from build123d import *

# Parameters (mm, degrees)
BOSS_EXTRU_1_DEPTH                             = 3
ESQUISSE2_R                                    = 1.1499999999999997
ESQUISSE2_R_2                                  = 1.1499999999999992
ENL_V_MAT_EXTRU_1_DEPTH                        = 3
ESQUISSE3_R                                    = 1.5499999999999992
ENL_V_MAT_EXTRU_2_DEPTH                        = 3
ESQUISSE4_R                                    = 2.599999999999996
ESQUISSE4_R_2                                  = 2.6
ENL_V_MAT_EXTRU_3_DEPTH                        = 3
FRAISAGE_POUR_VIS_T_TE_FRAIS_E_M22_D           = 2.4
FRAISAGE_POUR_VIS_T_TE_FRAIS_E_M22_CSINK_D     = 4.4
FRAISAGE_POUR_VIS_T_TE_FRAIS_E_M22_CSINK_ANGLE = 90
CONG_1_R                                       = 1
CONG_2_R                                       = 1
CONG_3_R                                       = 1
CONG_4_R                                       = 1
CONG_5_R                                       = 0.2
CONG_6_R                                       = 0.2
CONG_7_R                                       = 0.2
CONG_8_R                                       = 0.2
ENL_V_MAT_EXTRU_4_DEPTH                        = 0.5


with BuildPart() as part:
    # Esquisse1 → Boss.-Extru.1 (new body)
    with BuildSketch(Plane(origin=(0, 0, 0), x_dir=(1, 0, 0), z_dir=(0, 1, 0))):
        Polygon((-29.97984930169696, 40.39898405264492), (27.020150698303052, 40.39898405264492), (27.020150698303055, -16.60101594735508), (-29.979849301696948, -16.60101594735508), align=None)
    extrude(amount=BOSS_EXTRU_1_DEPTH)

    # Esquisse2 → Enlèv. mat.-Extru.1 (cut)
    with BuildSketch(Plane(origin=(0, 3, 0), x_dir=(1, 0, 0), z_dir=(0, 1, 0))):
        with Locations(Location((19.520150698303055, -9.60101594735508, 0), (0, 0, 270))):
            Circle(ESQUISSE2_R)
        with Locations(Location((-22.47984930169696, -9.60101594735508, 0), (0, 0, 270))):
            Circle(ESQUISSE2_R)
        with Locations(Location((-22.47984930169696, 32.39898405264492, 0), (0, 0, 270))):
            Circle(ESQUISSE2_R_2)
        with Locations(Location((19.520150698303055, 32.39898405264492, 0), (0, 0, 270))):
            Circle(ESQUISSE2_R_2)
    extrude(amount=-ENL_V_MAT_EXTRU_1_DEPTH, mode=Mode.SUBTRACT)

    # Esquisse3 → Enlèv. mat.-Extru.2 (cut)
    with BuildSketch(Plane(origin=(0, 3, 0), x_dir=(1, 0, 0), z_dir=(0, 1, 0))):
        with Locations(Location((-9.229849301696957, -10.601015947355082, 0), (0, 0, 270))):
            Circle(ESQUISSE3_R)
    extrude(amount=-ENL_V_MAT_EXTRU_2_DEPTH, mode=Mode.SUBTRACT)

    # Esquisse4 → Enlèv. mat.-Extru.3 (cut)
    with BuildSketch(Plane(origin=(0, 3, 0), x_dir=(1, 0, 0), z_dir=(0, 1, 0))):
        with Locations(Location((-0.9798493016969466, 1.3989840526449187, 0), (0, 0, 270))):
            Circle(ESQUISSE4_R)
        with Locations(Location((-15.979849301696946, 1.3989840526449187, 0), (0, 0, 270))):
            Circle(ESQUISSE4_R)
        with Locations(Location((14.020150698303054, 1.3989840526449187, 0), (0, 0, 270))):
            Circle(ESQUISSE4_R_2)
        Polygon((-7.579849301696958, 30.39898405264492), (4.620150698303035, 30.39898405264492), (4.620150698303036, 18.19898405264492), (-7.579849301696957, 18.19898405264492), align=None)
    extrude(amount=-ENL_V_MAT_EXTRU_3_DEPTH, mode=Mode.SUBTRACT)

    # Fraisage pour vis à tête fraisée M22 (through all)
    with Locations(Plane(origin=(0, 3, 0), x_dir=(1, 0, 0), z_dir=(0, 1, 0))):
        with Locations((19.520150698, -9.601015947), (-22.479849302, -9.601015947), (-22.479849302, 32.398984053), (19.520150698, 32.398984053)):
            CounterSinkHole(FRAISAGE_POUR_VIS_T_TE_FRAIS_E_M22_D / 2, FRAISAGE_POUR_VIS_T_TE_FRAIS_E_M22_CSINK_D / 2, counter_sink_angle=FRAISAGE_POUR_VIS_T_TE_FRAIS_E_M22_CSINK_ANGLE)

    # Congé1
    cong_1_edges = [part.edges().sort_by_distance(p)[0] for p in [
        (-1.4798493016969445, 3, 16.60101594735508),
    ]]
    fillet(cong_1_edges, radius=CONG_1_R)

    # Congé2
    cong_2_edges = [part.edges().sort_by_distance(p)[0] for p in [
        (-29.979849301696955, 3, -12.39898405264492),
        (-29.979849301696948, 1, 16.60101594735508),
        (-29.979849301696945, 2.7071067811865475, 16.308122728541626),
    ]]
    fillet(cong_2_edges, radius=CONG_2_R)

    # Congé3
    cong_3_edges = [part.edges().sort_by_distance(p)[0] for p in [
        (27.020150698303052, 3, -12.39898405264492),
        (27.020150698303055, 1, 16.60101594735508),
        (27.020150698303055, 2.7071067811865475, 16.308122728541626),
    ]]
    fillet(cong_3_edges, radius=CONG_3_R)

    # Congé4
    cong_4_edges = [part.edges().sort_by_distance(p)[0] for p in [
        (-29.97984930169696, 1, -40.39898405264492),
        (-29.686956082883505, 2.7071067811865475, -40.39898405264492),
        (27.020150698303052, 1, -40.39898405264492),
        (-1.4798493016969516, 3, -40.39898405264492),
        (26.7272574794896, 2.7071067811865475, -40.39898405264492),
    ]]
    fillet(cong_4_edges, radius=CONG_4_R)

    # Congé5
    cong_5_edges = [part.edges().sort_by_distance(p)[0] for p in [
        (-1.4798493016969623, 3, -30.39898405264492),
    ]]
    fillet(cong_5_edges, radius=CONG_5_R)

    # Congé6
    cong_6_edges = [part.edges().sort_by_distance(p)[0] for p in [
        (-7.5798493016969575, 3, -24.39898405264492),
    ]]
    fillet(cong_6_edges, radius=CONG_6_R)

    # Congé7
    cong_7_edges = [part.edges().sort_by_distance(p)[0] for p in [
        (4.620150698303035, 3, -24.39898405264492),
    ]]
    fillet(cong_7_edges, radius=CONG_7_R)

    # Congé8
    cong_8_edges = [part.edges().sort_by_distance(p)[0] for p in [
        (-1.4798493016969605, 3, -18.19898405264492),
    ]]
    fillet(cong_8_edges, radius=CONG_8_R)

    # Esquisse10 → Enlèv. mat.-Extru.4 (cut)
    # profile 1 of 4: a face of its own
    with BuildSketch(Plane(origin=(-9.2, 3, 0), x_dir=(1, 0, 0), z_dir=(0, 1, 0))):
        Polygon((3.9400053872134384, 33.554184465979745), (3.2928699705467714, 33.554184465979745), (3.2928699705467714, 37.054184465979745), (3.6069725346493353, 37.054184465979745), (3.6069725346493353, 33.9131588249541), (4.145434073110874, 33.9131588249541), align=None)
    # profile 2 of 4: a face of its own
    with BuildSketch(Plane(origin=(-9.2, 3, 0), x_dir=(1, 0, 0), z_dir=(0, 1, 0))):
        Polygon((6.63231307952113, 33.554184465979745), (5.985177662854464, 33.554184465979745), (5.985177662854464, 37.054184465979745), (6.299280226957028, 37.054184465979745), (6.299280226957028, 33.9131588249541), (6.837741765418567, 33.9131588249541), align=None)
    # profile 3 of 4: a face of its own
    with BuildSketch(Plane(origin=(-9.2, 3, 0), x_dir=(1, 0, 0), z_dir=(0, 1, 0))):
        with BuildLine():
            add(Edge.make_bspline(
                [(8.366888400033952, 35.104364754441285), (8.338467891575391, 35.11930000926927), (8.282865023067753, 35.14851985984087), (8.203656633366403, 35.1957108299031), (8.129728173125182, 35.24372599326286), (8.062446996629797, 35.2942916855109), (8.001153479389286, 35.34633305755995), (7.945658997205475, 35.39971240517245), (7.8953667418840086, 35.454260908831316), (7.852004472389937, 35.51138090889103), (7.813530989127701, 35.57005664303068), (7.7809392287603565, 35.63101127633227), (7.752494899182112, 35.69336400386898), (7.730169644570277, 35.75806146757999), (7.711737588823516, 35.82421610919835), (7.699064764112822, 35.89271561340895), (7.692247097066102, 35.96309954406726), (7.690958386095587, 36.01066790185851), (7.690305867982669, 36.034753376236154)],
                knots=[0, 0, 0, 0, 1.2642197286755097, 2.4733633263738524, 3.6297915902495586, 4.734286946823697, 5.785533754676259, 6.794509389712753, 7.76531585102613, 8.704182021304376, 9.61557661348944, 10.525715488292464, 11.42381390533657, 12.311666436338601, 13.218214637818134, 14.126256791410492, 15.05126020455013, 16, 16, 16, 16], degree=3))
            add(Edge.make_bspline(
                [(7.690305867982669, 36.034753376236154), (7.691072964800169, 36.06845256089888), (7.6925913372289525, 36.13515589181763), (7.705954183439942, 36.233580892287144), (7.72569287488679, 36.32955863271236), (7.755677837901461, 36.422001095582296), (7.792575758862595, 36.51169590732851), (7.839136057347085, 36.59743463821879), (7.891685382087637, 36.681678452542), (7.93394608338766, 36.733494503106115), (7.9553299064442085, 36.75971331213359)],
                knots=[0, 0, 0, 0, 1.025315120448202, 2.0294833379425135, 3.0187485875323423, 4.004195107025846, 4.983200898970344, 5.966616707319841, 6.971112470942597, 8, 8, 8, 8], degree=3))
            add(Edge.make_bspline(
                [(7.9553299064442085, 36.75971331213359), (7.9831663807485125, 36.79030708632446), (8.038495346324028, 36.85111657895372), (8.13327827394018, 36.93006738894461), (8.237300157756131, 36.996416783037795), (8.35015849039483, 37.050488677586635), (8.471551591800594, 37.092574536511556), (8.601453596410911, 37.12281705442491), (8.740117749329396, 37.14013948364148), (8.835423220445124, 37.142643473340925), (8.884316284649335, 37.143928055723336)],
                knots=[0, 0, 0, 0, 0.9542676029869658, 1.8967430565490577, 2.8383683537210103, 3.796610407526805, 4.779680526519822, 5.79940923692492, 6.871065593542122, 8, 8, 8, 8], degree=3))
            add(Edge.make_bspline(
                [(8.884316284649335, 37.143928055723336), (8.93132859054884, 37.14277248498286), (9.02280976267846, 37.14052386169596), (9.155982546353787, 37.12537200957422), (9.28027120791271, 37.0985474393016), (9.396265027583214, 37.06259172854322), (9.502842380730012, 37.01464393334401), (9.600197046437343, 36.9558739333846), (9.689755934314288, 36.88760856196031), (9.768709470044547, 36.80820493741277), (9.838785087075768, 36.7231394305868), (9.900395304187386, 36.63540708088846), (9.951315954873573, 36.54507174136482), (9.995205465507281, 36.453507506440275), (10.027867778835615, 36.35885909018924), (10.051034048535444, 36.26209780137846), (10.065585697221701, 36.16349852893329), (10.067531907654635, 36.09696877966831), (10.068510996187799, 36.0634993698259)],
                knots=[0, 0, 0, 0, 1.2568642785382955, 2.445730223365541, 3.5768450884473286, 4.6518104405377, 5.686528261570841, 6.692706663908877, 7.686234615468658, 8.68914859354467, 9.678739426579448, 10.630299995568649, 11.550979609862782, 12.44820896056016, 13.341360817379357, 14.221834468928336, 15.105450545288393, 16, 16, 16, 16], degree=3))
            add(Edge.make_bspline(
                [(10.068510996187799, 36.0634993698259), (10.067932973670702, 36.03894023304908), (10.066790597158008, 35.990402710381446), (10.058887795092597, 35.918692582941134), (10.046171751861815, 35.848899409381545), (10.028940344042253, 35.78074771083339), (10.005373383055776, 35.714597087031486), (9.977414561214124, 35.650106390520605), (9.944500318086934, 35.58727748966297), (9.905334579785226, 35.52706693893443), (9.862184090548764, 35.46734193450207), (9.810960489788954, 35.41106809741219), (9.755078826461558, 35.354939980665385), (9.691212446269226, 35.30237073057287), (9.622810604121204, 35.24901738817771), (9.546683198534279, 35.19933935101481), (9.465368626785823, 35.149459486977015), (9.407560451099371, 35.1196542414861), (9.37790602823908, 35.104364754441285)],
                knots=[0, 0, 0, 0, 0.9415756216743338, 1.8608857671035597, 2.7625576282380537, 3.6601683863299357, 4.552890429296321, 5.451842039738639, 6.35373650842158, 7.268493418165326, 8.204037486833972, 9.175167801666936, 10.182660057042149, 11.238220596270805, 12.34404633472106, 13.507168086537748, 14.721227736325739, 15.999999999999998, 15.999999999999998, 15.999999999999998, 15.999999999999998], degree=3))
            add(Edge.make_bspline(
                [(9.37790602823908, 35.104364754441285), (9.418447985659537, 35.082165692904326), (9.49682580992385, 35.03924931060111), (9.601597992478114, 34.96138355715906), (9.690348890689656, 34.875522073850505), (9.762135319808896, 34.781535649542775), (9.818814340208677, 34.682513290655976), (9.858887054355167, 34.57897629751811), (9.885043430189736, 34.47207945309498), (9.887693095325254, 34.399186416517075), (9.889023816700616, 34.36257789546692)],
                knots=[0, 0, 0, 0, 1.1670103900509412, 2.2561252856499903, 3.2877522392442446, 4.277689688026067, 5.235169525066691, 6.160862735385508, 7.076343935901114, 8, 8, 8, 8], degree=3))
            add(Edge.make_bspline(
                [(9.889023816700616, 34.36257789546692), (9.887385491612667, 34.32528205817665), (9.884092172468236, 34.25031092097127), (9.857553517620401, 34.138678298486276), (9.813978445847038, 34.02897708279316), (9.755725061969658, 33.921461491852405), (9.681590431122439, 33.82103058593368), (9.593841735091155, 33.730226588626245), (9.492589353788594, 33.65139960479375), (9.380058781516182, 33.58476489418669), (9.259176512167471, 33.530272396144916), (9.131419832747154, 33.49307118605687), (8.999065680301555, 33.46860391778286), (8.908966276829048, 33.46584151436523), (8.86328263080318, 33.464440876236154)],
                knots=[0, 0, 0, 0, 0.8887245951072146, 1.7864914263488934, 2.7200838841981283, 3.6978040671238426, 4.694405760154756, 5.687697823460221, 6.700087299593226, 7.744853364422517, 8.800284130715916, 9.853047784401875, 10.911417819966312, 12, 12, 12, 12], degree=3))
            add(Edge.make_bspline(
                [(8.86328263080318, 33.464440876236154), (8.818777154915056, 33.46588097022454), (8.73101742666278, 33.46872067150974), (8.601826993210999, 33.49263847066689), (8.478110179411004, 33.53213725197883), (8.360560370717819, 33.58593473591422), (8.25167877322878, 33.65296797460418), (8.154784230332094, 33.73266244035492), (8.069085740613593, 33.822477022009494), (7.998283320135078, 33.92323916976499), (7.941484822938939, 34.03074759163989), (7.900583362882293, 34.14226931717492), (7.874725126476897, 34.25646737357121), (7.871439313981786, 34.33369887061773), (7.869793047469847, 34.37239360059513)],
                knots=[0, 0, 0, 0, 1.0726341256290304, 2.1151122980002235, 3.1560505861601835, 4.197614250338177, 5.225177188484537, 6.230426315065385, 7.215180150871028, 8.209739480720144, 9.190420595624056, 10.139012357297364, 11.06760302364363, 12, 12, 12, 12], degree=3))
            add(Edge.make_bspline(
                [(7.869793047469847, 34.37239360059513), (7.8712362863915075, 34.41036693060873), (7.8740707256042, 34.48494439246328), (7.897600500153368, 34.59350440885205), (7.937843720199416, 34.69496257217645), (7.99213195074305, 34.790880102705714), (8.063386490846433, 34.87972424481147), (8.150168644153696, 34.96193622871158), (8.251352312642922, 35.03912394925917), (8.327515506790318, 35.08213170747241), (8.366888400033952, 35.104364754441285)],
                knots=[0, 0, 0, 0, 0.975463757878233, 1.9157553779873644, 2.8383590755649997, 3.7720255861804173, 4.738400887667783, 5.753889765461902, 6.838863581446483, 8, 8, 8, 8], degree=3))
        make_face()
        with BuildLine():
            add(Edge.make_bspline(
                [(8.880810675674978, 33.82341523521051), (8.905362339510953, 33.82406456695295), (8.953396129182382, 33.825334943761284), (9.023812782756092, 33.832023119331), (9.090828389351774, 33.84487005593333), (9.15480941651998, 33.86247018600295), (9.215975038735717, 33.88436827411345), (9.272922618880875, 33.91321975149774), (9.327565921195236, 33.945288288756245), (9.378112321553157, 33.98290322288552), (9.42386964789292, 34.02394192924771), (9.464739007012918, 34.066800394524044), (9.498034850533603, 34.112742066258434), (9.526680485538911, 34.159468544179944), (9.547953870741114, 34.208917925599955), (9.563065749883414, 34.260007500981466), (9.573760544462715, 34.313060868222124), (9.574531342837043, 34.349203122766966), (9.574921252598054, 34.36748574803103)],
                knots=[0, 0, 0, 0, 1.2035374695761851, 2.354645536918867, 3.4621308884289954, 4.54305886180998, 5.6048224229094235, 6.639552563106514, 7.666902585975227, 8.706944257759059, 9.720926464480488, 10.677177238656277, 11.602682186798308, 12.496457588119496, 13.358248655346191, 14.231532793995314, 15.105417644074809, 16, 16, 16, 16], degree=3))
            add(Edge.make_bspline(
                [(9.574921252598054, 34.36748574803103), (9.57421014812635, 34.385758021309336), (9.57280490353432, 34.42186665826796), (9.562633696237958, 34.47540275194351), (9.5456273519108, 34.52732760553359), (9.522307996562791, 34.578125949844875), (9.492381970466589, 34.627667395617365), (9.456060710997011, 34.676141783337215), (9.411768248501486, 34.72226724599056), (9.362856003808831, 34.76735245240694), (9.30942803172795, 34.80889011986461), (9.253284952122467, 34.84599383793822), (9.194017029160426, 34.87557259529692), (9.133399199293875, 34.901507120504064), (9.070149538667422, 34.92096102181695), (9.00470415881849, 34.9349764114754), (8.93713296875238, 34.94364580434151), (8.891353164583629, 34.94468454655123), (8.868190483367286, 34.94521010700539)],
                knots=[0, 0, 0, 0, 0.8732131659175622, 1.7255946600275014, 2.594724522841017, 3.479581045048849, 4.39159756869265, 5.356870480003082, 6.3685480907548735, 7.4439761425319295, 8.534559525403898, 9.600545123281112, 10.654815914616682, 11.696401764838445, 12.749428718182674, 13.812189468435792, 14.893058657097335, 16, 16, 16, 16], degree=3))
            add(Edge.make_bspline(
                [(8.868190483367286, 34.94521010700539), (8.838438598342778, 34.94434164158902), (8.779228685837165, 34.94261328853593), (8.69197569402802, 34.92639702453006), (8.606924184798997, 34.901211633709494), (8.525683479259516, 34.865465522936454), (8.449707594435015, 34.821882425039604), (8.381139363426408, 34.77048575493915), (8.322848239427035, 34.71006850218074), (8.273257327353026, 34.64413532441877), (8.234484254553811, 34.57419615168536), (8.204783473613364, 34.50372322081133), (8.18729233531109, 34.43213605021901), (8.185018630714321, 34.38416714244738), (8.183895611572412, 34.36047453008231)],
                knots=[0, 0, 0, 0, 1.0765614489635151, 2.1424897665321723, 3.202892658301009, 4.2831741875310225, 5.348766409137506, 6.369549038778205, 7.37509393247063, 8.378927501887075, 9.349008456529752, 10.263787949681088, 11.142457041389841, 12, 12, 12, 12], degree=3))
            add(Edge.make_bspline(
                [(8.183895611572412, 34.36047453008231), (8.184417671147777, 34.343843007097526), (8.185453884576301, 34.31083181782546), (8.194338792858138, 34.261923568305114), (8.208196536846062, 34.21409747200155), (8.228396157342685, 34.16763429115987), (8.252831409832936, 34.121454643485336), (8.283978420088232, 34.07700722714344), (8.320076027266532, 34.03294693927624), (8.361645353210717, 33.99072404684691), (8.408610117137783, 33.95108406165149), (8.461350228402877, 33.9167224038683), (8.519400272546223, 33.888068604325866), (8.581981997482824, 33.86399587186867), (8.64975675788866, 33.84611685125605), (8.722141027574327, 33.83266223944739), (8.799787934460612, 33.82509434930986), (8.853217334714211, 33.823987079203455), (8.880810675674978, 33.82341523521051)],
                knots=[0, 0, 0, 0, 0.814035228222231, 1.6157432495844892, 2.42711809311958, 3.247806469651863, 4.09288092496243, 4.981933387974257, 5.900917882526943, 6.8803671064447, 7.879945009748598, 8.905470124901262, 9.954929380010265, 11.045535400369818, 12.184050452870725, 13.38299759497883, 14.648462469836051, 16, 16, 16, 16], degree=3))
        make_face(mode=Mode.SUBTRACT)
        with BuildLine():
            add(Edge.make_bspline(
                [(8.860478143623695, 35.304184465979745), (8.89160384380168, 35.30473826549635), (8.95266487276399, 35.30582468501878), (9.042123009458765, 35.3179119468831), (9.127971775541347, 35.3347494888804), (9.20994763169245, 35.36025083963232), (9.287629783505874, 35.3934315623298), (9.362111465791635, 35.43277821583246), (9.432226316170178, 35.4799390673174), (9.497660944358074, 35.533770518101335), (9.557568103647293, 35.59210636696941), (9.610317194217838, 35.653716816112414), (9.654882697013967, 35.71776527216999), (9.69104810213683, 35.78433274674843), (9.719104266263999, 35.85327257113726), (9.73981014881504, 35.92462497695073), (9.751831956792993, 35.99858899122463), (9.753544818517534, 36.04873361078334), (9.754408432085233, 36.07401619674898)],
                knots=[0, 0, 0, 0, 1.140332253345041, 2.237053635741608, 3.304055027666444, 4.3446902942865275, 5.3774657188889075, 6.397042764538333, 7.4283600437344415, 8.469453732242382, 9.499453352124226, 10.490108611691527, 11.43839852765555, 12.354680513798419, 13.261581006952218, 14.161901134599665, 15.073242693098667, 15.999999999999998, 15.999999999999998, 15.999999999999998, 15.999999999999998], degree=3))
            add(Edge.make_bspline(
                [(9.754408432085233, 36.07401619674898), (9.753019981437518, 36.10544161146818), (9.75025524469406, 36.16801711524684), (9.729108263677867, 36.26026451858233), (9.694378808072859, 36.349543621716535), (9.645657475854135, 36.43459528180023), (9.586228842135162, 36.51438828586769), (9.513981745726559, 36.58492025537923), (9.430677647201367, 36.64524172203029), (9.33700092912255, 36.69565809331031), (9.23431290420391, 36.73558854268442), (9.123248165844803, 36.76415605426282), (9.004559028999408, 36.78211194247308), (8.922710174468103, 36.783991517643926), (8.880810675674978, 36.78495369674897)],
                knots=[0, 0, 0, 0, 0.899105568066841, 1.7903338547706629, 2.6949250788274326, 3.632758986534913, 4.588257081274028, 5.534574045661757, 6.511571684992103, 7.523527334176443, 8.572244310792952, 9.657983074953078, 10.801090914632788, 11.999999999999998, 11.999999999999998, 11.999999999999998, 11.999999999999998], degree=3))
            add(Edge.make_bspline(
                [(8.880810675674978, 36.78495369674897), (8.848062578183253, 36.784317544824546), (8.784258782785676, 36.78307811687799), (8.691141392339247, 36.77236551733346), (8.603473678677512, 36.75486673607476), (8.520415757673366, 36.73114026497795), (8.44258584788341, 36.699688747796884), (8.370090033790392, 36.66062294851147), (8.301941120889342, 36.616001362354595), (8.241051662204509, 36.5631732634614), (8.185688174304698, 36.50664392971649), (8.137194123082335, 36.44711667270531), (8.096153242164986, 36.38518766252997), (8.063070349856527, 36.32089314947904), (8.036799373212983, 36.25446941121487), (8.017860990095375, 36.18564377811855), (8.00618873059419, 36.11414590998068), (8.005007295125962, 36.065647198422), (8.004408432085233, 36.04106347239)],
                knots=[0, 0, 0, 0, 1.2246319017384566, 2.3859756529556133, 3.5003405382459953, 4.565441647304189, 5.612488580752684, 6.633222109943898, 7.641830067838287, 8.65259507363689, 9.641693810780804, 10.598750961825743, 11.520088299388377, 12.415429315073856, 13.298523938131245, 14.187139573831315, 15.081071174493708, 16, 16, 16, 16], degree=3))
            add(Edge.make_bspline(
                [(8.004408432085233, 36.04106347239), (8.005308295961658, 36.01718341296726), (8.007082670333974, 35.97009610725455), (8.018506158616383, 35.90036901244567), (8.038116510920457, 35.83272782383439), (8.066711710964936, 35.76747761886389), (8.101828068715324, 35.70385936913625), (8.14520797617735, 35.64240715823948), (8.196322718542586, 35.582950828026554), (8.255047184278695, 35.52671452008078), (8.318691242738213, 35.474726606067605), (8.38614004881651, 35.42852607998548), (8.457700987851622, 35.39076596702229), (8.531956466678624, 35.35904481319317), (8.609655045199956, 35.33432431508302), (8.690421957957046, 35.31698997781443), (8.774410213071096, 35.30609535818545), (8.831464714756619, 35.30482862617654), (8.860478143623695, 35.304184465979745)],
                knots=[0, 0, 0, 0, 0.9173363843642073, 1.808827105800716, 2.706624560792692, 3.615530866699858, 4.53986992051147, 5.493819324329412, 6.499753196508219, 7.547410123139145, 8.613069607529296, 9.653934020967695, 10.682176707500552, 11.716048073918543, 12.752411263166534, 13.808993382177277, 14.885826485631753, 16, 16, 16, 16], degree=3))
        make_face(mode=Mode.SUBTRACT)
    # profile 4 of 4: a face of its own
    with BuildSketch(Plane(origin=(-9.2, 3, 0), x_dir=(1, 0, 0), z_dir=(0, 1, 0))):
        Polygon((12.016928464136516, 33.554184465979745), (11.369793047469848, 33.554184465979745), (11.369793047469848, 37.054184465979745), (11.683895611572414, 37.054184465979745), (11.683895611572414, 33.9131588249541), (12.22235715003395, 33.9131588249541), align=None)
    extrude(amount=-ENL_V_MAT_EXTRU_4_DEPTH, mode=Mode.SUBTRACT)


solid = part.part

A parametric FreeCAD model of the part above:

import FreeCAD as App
import Part
import Sketcher

V = App.Vector
Q = App.Units.Quantity


def edges_at(feature, points):
    """Names of the edges that pass closest to the given points."""
    edges = feature.Shape.Edges
    near = lambda p: min(range(len(edges)), key=lambda i: edges[i].distToShape(Part.Vertex(*p))[0])
    return sorted({f"Edge{near(p) + 1}" for p in points})

doc = App.newDocument("Part")
body = doc.addObject("PartDesign::Body", "Body")

# Sketch on XZ plane
sketch1 = body.newObject("Sketcher::SketchObject", "Sketch")
sketch1.AttachmentSupport = (doc.getObject("XZ_Plane"), [""])
sketch1.MapMode = "FlatFace"
sketch1.addGeometry([
    Part.LineSegment(V(27, -40, 0), V(-30, -40, 0)),
    Part.LineSegment(V(-30, -40, 0), V(-30, 17, 0)),
    Part.LineSegment(V(-30, 17, 0), V(27, 17, 0)),
    Part.LineSegment(V(27, 17, 0), V(27, -40, 0)),
], False)
sketch1.addConstraint([
    Sketcher.Constraint("Coincident", 0, 2, 1, 1),
    Sketcher.Constraint("Coincident", 1, 2, 2, 1),
    Sketcher.Constraint("Coincident", 2, 2, 3, 1),
    Sketcher.Constraint("Coincident", 3, 2, 0, 1),
    Sketcher.Constraint("Horizontal", 0),
    Sketcher.Constraint("Vertical", 1),
    Sketcher.Constraint("Horizontal", 2),
    Sketcher.Constraint("Vertical", 3),
    Sketcher.Constraint("Equal", 2, 1),
    Sketcher.Constraint("DistanceX", 0, 2, 0, 1, Q("57 mm")),
    Sketcher.Constraint("DistanceX", 0, 2, -1, 1, Q("29.979849 mm")),
    Sketcher.Constraint("DistanceY", 0, 2, -1, 1, Q("40.398984 mm")),
])
pad1 = body.newObject("PartDesign::Pad", "Pad")
pad1.Profile = sketch1
pad1.Length = 3
pad1.Reversed = True

# Sketch on XZ plane
sketch2 = body.newObject("Sketcher::SketchObject", "Sketch001")
sketch2.AttachmentSupport = (doc.getObject("XZ_Plane"), [""])
sketch2.MapMode = "FlatFace"
sketch2.AttachmentOffset = App.Placement(V(0, 0, -3), App.Rotation())
sketch2.addGeometry([
    Part.Circle(V(19.5, 9.6, 0), V(0, 0, 1), 1.1),
    Part.Circle(V(-22.5, 9.6, 0), V(0, 0, 1), 1.1),
    Part.Circle(V(-22.5, -32.4, 0), V(0, 0, 1), 1.1),
    Part.Circle(V(19.5, -32.4, 0), V(0, 0, 1), 1.1),
], False)
sketch2.addConstraint([
    Sketcher.Constraint("Equal", 0, 1),
    Sketcher.Constraint("Equal", 1, 2),
    Sketcher.Constraint("Equal", 2, 3),
    Sketcher.Constraint("Horizontal", 0, 3, 1, 3),
    Sketcher.Constraint("Horizontal", 2, 3, 3, 3),
    Sketcher.Constraint("Vertical", 1, 3, 2, 3),
    Sketcher.Constraint("Vertical", 0, 3, 3, 3),
    Sketcher.Constraint("Diameter", 0, Q("2.3 mm")),
    Sketcher.Constraint("DistanceX", 1, 3, 0, 3, Q("42 mm")),
    Sketcher.Constraint("DistanceY", 2, 3, 1, 3, Q("42 mm")),
    Sketcher.Constraint("DistanceX", -1, 1, 0, 3, Q("19.520151 mm")),
    Sketcher.Constraint("DistanceY", -1, 1, 0, 3, Q("9.601016 mm")),
])
pocket1 = body.newObject("PartDesign::Pocket", "Pocket")
pocket1.Profile = sketch2
pocket1.Length = 3
pocket1.Reversed = True

# Sketch on XZ plane
sketch3 = body.newObject("Sketcher::SketchObject", "Sketch002")
sketch3.AttachmentSupport = (doc.getObject("XZ_Plane"), [""])
sketch3.MapMode = "FlatFace"
sketch3.AttachmentOffset = App.Placement(V(0, 0, -3), App.Rotation())
sketch3.addGeometry(Part.Circle(V(-9.2, 10.6, 0), V(0, 0, 1), 1.6), False)
sketch3.addConstraint([
    Sketcher.Constraint("Diameter", 0, Q("3.1 mm")),
    Sketcher.Constraint("DistanceX", 0, 3, -1, 1, Q("9.229849 mm")),
    Sketcher.Constraint("DistanceY", -1, 1, 0, 3, Q("10.601016 mm")),
])
pocket2 = body.newObject("PartDesign::Pocket", "Pocket001")
pocket2.Profile = sketch3
pocket2.Length = 3
pocket2.Reversed = True

# Sketch on XZ plane
sketch4 = body.newObject("Sketcher::SketchObject", "Sketch003")
sketch4.AttachmentSupport = (doc.getObject("XZ_Plane"), [""])
sketch4.MapMode = "FlatFace"
sketch4.AttachmentOffset = App.Placement(V(0, 0, -3), App.Rotation())
sketch4.addGeometry([
    Part.Circle(V(-1, -1.4, 0), V(0, 0, 1), 2.6),  # 0
    Part.Circle(V(-16, -1.4, 0), V(0, 0, 1), 2.6),  # 1
    Part.Circle(V(14, -1.4, 0), V(0, 0, 1), 2.6),  # 2
    Part.LineSegment(V(4.6, -30.4, 0), V(-7.6, -30.4, 0)),  # 3
    Part.LineSegment(V(-7.6, -30.4, 0), V(-7.6, -18.2, 0)),  # 4
    Part.LineSegment(V(-7.6, -18.2, 0), V(4.6, -18.2, 0)),  # 5
    Part.LineSegment(V(4.6, -18.2, 0), V(4.6, -30.4, 0)),  # 6
], False)
sketch4.addConstraint([
    Sketcher.Constraint("Coincident", 3, 2, 4, 1),
    Sketcher.Constraint("Coincident", 4, 2, 5, 1),
    Sketcher.Constraint("Coincident", 5, 2, 6, 1),
    Sketcher.Constraint("Coincident", 6, 2, 3, 1),
    Sketcher.Constraint("Horizontal", 3),
    Sketcher.Constraint("Vertical", 4),
    Sketcher.Constraint("Horizontal", 5),
    Sketcher.Constraint("Vertical", 6),
    Sketcher.Constraint("Equal", 0, 1),
    Sketcher.Constraint("Equal", 1, 2),
    Sketcher.Constraint("Horizontal", 0, 3, 1, 3),
    Sketcher.Constraint("Horizontal", 1, 3, 2, 3),
    Sketcher.Constraint("Equal", 5, 4),
    Sketcher.Constraint("Diameter", 0, Q("5.2 mm")),
    Sketcher.Constraint("DistanceX", 3, 2, 3, 1, Q("12.2 mm")),
    Sketcher.Constraint("DistanceX", 1, 3, 0, 3, Q("15 mm")),
    Sketcher.Constraint("DistanceX", 0, 3, 2, 3, Q("15 mm")),
    Sketcher.Constraint("DistanceY", 3, 2, 0, 3, Q("29 mm")),
    Sketcher.Constraint("DistanceX", 3, 2, 0, 3, Q("6.6 mm")),
    Sketcher.Constraint("DistanceX", 0, 3, -1, 1, Q("0.979849 mm")),
    Sketcher.Constraint("DistanceY", 0, 3, -1, 1, Q("1.398984 mm")),
])
pocket3 = body.newObject("PartDesign::Pocket", "Pocket002")
pocket3.Profile = sketch4
pocket3.Length = 3
pocket3.Reversed = True

# Sketch on XZ plane
sketch5 = body.newObject("Sketcher::SketchObject", "Sketch004")
sketch5.AttachmentSupport = (doc.getObject("XZ_Plane"), [""])
sketch5.MapMode = "FlatFace"
sketch5.AttachmentOffset = App.Placement(V(0, 0, -3), App.Rotation())
sketch5.addGeometry([
    Part.Circle(V(19.5, 9.6, 0), V(0, 0, 1), 1.2),
    Part.Circle(V(-22.5, 9.6, 0), V(0, 0, 1), 1.2),
    Part.Circle(V(-22.5, -32.4, 0), V(0, 0, 1), 1.2),
    Part.Circle(V(19.5, -32.4, 0), V(0, 0, 1), 1.2),
], False)
sketch5.addConstraint([
    Sketcher.Constraint("Equal", 0, 1),
    Sketcher.Constraint("Equal", 1, 2),
    Sketcher.Constraint("Equal", 2, 3),
    Sketcher.Constraint("Horizontal", 0, 3, 1, 3),
    Sketcher.Constraint("Horizontal", 2, 3, 3, 3),
    Sketcher.Constraint("Vertical", 1, 3, 2, 3),
    Sketcher.Constraint("Vertical", 0, 3, 3, 3),
    Sketcher.Constraint("Diameter", 0, Q("2.4 mm")),
    Sketcher.Constraint("DistanceX", 1, 3, 0, 3, Q("42 mm")),
    Sketcher.Constraint("DistanceY", 2, 3, 1, 3, Q("42 mm")),
    Sketcher.Constraint("DistanceX", -1, 1, 0, 3, Q("19.520151 mm")),
    Sketcher.Constraint("DistanceY", -1, 1, 0, 3, Q("9.601016 mm")),
])
doc.recompute()
hole = body.newObject("PartDesign::Hole", "Hole")
hole.Profile = sketch5
hole.ThreadType = "None"
hole.Diameter = 2.4
hole.DepthType = "ThroughAll"
hole.HoleCutType = "Countersink"
hole.HoleCutDiameter = 4.4
hole.HoleCutCountersinkAngle = 90
hole.Reversed = True
doc.recompute()

fillet = body.newObject("PartDesign::Fillet", "Fillet")
fillet.Base = (hole, edges_at(hole, [(-1.48, 3, 16.601)]))
fillet.Radius = 1
doc.recompute()

fillet2 = body.newObject("PartDesign::Fillet", "Fillet001")
fillet2.Base = (fillet, edges_at(fillet, [(-29.98, 3, -12.399), (-29.98, 1, 16.601), (-29.98, 2.707, 16.308)]))
fillet2.Radius = 1
doc.recompute()

fillet3 = body.newObject("PartDesign::Fillet", "Fillet002")
fillet3.Base = (fillet2, edges_at(fillet2, [(27.02, 3, -12.399), (27.02, 1, 16.601), (27.02, 2.707, 16.308)]))
fillet3.Radius = 1
doc.recompute()

fillet4 = body.newObject("PartDesign::Fillet", "Fillet003")
fillet4.Base = (fillet3, edges_at(fillet3, [
    (-29.98, 1, -40.399),
    (-29.687, 2.707, -40.399),
    (27.02, 1, -40.399),
    (-1.48, 3, -40.399),
    (26.727, 2.707, -40.399),
]))
fillet4.Radius = 1
doc.recompute()

fillet5 = body.newObject("PartDesign::Fillet", "Fillet004")
fillet5.Base = (fillet4, edges_at(fillet4, [(-1.48, 3, -30.399)]))
fillet5.Radius = 0.2
doc.recompute()

fillet6 = body.newObject("PartDesign::Fillet", "Fillet005")
fillet6.Base = (fillet5, edges_at(fillet5, [(-7.58, 3, -24.399)]))
fillet6.Radius = 0.2
doc.recompute()

fillet7 = body.newObject("PartDesign::Fillet", "Fillet006")
fillet7.Base = (fillet6, edges_at(fillet6, [(4.62, 3, -24.399)]))
fillet7.Radius = 0.2
doc.recompute()

fillet8 = body.newObject("PartDesign::Fillet", "Fillet007")
fillet8.Base = (fillet7, edges_at(fillet7, [(-1.48, 3, -18.199)]))
fillet8.Radius = 0.2

# Sketch on XZ plane
sketch6 = body.newObject("Sketcher::SketchObject", "Sketch005")
sketch6.AttachmentSupport = (doc.getObject("XZ_Plane"), [""])
sketch6.MapMode = "FlatFace"
sketch6.AttachmentOffset = App.Placement(V(0, 0, -3), App.Rotation())
sketch6.addGeometry([
    Part.LineSegment(V(-5.90713, -33.554184, 0), V(-5.259995, -33.554184, 0)),  # 0
    Part.LineSegment(V(-5.259995, -33.554184, 0), V(-5.054566, -33.913159, 0)),  # 1
    Part.LineSegment(V(-5.054566, -33.913159, 0), V(-5.593027, -33.913159, 0)),  # 2
    Part.LineSegment(V(-5.593027, -33.913159, 0), V(-5.593027, -37.054184, 0)),  # 3
    Part.LineSegment(V(-5.593027, -37.054184, 0), V(-5.90713, -37.054184, 0)),  # 4
    Part.LineSegment(V(-5.90713, -37.054184, 0), V(-5.90713, -33.554184, 0)),  # 5
    Part.LineSegment(V(-3.214822, -33.554184, 0), V(-2.567687, -33.554184, 0)),  # 6
    Part.LineSegment(V(-2.567687, -33.554184, 0), V(-2.362258, -33.913159, 0)),  # 7
    Part.LineSegment(V(-2.362258, -33.913159, 0), V(-2.90072, -33.913159, 0)),  # 8
    Part.LineSegment(V(-2.90072, -33.913159, 0), V(-2.90072, -37.054184, 0)),  # 9
    Part.LineSegment(V(-2.90072, -37.054184, 0), V(-3.214822, -37.054184, 0)),  # 10
    Part.LineSegment(V(-3.214822, -37.054184, 0), V(-3.214822, -33.554184, 0)),  # 11
    Part.BSplineCurve([V(-0.833112, -35.104365, 0), V(-0.861532, -35.1193, 0), V(-0.917135, -35.14852, 0), V(-0.996343, -35.195711, 0), V(-1.070272, -35.243726, 0), V(-1.137553, -35.294292, 0), V(-1.198847, -35.346333, 0), V(-1.254341, -35.399712, 0), V(-1.304633, -35.454261, 0), V(-1.347996, -35.511381, 0), V(-1.386469, -35.570057, 0), V(-1.419061, -35.631011, 0), V(-1.447505, -35.693364, 0), V(-1.46983, -35.758061, 0), V(-1.488262, -35.824216, 0), V(-1.500935, -35.892716, 0), V(-1.507753, -35.9631, 0), V(-1.509042, -36.010668, 0), V(-1.509694, -36.034753, 0)], [4, 1, 1, 1, 1, 1, 1, 1, 1, 1, 1, 1, 1, 1, 1, 1, 4], [0, 1.264219729, 2.473363326, 3.62979159, 4.734286947, 5.785533755, 6.79450939, 7.765315851, 8.704182021, 9.615576613, 10.525715488, 11.423813905, 12.311666436, 13.218214638, 14.126256791, 15.051260205, 16], False, 3, [1, 1, 1, 1, 1, 1, 1, 1, 1, 1, 1, 1, 1, 1, 1, 1, 1, 1, 1], False),  # 12
    Part.BSplineCurve([V(-1.330207, -34.372394, 0), V(-1.328764, -34.410367, 0), V(-1.325929, -34.484944, 0), V(-1.302399, -34.593504, 0), V(-1.262156, -34.694963, 0), V(-1.207868, -34.79088, 0), V(-1.136614, -34.879724, 0), V(-1.049831, -34.961936, 0), V(-0.948648, -35.039124, 0), V(-0.872484, -35.082132, 0), V(-0.833112, -35.104365, 0)], [4, 1, 1, 1, 1, 1, 1, 1, 4], [0, 0.975463758, 1.915755378, 2.838359076, 3.772025586, 4.738400888, 5.753889765, 6.838863581, 8], False, 3, [1, 1, 1, 1, 1, 1, 1, 1, 1, 1, 1], False),  # 13
    Part.BSplineCurve([V(-0.336717, -33.464441, 0), V(-0.381223, -33.465881, 0), V(-0.468983, -33.468721, 0), V(-0.598173, -33.492638, 0), V(-0.72189, -33.532137, 0), V(-0.83944, -33.585935, 0), V(-0.948321, -33.652968, 0), V(-1.045216, -33.732662, 0), V(-1.130914, -33.822477, 0), V(-1.201717, -33.923239, 0), V(-1.258515, -34.030748, 0), V(-1.299417, -34.142269, 0), V(-1.325275, -34.256467, 0), V(-1.328561, -34.333699, 0), V(-1.330207, -34.372394, 0)], [4, 1, 1, 1, 1, 1, 1, 1, 1, 1, 1, 1, 4], [0, 1.072634126, 2.115112298, 3.156050586, 4.19761425, 5.225177188, 6.230426315, 7.215180151, 8.209739481, 9.190420596, 10.139012357, 11.067603024, 12], False, 3, [1, 1, 1, 1, 1, 1, 1, 1, 1, 1, 1, 1, 1, 1, 1], False),  # 14
    Part.BSplineCurve([V(0.689024, -34.362578, 0), V(0.687385, -34.325282, 0), V(0.684092, -34.250311, 0), V(0.657554, -34.138678, 0), V(0.613978, -34.028977, 0), V(0.555725, -33.921461, 0), V(0.48159, -33.821031, 0), V(0.393842, -33.730227, 0), V(0.292589, -33.6514, 0), V(0.180059, -33.584765, 0), V(0.059177, -33.530272, 0), V(-0.06858, -33.493071, 0), V(-0.200934, -33.468604, 0), V(-0.291034, -33.465842, 0), V(-0.336717, -33.464441, 0)], [4, 1, 1, 1, 1, 1, 1, 1, 1, 1, 1, 1, 4], [0, 0.888724595, 1.786491426, 2.720083884, 3.697804067, 4.69440576, 5.687697823, 6.7000873, 7.744853364, 8.800284131, 9.853047784, 10.91141782, 12], False, 3, [1, 1, 1, 1, 1, 1, 1, 1, 1, 1, 1, 1, 1, 1, 1], False),  # 15
    Part.BSplineCurve([V(0.177906, -35.104365, 0), V(0.218448, -35.082166, 0), V(0.296826, -35.039249, 0), V(0.401598, -34.961384, 0), V(0.490349, -34.875522, 0), V(0.562135, -34.781536, 0), V(0.618814, -34.682513, 0), V(0.658887, -34.578976, 0), V(0.685043, -34.472079, 0), V(0.687693, -34.399186, 0), V(0.689024, -34.362578, 0)], [4, 1, 1, 1, 1, 1, 1, 1, 4], [0, 1.16701039, 2.256125286, 3.287752239, 4.277689688, 5.235169525, 6.160862735, 7.076343936, 8], False, 3, [1, 1, 1, 1, 1, 1, 1, 1, 1, 1, 1], False),  # 16
    Part.BSplineCurve([V(0.868511, -36.063499, 0), V(0.867933, -36.03894, 0), V(0.866791, -35.990403, 0), V(0.858888, -35.918693, 0), V(0.846172, -35.848899, 0), V(0.82894, -35.780748, 0), V(0.805373, -35.714597, 0), V(0.777415, -35.650106, 0), V(0.7445, -35.587277, 0), V(0.705335, -35.527067, 0), V(0.662184, -35.467342, 0), V(0.61096, -35.411068, 0), V(0.555079, -35.35494, 0), V(0.491212, -35.302371, 0), V(0.422811, -35.249017, 0), V(0.346683, -35.199339, 0), V(0.265369, -35.149459, 0), V(0.20756, -35.119654, 0), V(0.177906, -35.104365, 0)], [4, 1, 1, 1, 1, 1, 1, 1, 1, 1, 1, 1, 1, 1, 1, 1, 4], [0, 0.941575622, 1.860885767, 2.762557628, 3.660168386, 4.552890429, 5.45184204, 6.353736508, 7.268493418, 8.204037487, 9.175167802, 10.182660057, 11.238220596, 12.344046335, 13.507168087, 14.721227736, 16], False, 3, [1, 1, 1, 1, 1, 1, 1, 1, 1, 1, 1, 1, 1, 1, 1, 1, 1, 1, 1], False),  # 17
    Part.BSplineCurve([V(-0.315684, -37.143928, 0), V(-0.268671, -37.142772, 0), V(-0.17719, -37.140524, 0), V(-0.044017, -37.125372, 0), V(0.080271, -37.098547, 0), V(0.196265, -37.062592, 0), V(0.302842, -37.014644, 0), V(0.400197, -36.955874, 0), V(0.489756, -36.887609, 0), V(0.568709, -36.808205, 0), V(0.638785, -36.723139, 0), V(0.700395, -36.635407, 0), V(0.751316, -36.545072, 0), V(0.795205, -36.453508, 0), V(0.827868, -36.358859, 0), V(0.851034, -36.262098, 0), V(0.865586, -36.163499, 0), V(0.867532, -36.096969, 0), V(0.868511, -36.063499, 0)], [4, 1, 1, 1, 1, 1, 1, 1, 1, 1, 1, 1, 1, 1, 1, 1, 4], [0, 1.256864279, 2.445730223, 3.576845088, 4.651810441, 5.686528262, 6.692706664, 7.686234615, 8.689148594, 9.678739427, 10.630299996, 11.55097961, 12.448208961, 13.341360817, 14.221834469, 15.105450545, 16], False, 3, [1, 1, 1, 1, 1, 1, 1, 1, 1, 1, 1, 1, 1, 1, 1, 1, 1, 1, 1], False),  # 18
    Part.BSplineCurve([V(-1.24467, -36.759713, 0), V(-1.216834, -36.790307, 0), V(-1.161505, -36.851117, 0), V(-1.066722, -36.930067, 0), V(-0.9627, -36.996417, 0), V(-0.849842, -37.050489, 0), V(-0.728448, -37.092575, 0), V(-0.598546, -37.122817, 0), V(-0.459882, -37.140139, 0), V(-0.364577, -37.142643, 0), V(-0.315684, -37.143928, 0)], [4, 1, 1, 1, 1, 1, 1, 1, 4], [0, 0.954267603, 1.896743057, 2.838368354, 3.796610408, 4.779680527, 5.799409237, 6.871065594, 8], False, 3, [1, 1, 1, 1, 1, 1, 1, 1, 1, 1, 1], False),  # 19
    Part.BSplineCurve([V(-1.509694, -36.034753, 0), V(-1.508927, -36.068453, 0), V(-1.507409, -36.135156, 0), V(-1.494046, -36.233581, 0), V(-1.474307, -36.329559, 0), V(-1.444322, -36.422001, 0), V(-1.407424, -36.511696, 0), V(-1.360864, -36.597435, 0), V(-1.308315, -36.681678, 0), V(-1.266054, -36.733495, 0), V(-1.24467, -36.759713, 0)], [4, 1, 1, 1, 1, 1, 1, 1, 4], [0, 1.02531512, 2.029483338, 3.018748588, 4.004195107, 4.983200899, 5.966616707, 6.971112471, 8], False, 3, [1, 1, 1, 1, 1, 1, 1, 1, 1, 1, 1], False),  # 20
    Part.BSplineCurve([V(-1.016104, -34.360475, 0), V(-1.015582, -34.343843, 0), V(-1.014546, -34.310832, 0), V(-1.005661, -34.261924, 0), V(-0.991803, -34.214097, 0), V(-0.971604, -34.167634, 0), V(-0.947169, -34.121455, 0), V(-0.916022, -34.077007, 0), V(-0.879924, -34.032947, 0), V(-0.838355, -33.990724, 0), V(-0.79139, -33.951084, 0), V(-0.73865, -33.916722, 0), V(-0.6806, -33.888069, 0), V(-0.618018, -33.863996, 0), V(-0.550243, -33.846117, 0), V(-0.477859, -33.832662, 0), V(-0.400212, -33.825094, 0), V(-0.346783, -33.823987, 0), V(-0.319189, -33.823415, 0)], [4, 1, 1, 1, 1, 1, 1, 1, 1, 1, 1, 1, 1, 1, 1, 1, 4], [0, 0.814035228, 1.61574325, 2.427118093, 3.24780647, 4.092880925, 4.981933388, 5.900917883, 6.880367106, 7.87994501, 8.905470125, 9.95492938, 11.0455354, 12.184050453, 13.382997595, 14.64846247, 16], False, 3, [1, 1, 1, 1, 1, 1, 1, 1, 1, 1, 1, 1, 1, 1, 1, 1, 1, 1, 1], False),  # 21
    Part.BSplineCurve([V(-0.33181, -34.94521, 0), V(-0.361561, -34.944342, 0), V(-0.420771, -34.942613, 0), V(-0.508024, -34.926397, 0), V(-0.593076, -34.901212, 0), V(-0.674317, -34.865466, 0), V(-0.750292, -34.821882, 0), V(-0.818861, -34.770486, 0), V(-0.877152, -34.710069, 0), V(-0.926743, -34.644135, 0), V(-0.965516, -34.574196, 0), V(-0.995217, -34.503723, 0), V(-1.012708, -34.432136, 0), V(-1.014981, -34.384167, 0), V(-1.016104, -34.360475, 0)], [4, 1, 1, 1, 1, 1, 1, 1, 1, 1, 1, 1, 4], [0, 1.076561449, 2.142489767, 3.202892658, 4.283174188, 5.348766409, 6.369549039, 7.375093932, 8.378927502, 9.349008457, 10.26378795, 11.142457041, 12], False, 3, [1, 1, 1, 1, 1, 1, 1, 1, 1, 1, 1, 1, 1, 1, 1], False),  # 22
    Part.BSplineCurve([V(0.374921, -34.367486, 0), V(0.37421, -34.385758, 0), V(0.372805, -34.421867, 0), V(0.362634, -34.475403, 0), V(0.345627, -34.527328, 0), V(0.322308, -34.578126, 0), V(0.292382, -34.627667, 0), V(0.256061, -34.676142, 0), V(0.211768, -34.722267, 0), V(0.162856, -34.767352, 0), V(0.109428, -34.80889, 0), V(0.053285, -34.845994, 0), V(-0.005983, -34.875573, 0), V(-0.066601, -34.901507, 0), V(-0.12985, -34.920961, 0), V(-0.195296, -34.934976, 0), V(-0.262867, -34.943646, 0), V(-0.308647, -34.944685, 0), V(-0.33181, -34.94521, 0)], [4, 1, 1, 1, 1, 1, 1, 1, 1, 1, 1, 1, 1, 1, 1, 1, 4], [0, 0.873213166, 1.72559466, 2.594724523, 3.479581045, 4.391597569, 5.35687048, 6.368548091, 7.443976143, 8.534559525, 9.600545123, 10.654815915, 11.696401765, 12.749428718, 13.812189468, 14.893058657, 16], False, 3, [1, 1, 1, 1, 1, 1, 1, 1, 1, 1, 1, 1, 1, 1, 1, 1, 1, 1, 1], False),  # 23
    Part.BSplineCurve([V(-0.319189, -33.823415, 0), V(-0.294638, -33.824065, 0), V(-0.246604, -33.825335, 0), V(-0.176187, -33.832023, 0), V(-0.109172, -33.84487, 0), V(-0.045191, -33.86247, 0), V(0.015975, -33.884368, 0), V(0.072923, -33.91322, 0), V(0.127566, -33.945288, 0), V(0.178112, -33.982903, 0), V(0.22387, -34.023942, 0), V(0.264739, -34.0668, 0), V(0.298035, -34.112742, 0), V(0.32668, -34.159469, 0), V(0.347954, -34.208918, 0), V(0.363066, -34.260008, 0), V(0.373761, -34.313061, 0), V(0.374531, -34.349203, 0), V(0.374921, -34.367486, 0)], [4, 1, 1, 1, 1, 1, 1, 1, 1, 1, 1, 1, 1, 1, 1, 1, 4], [0, 1.20353747, 2.354645537, 3.462130888, 4.543058862, 5.604822423, 6.639552563, 7.666902586, 8.706944258, 9.720926464, 10.677177239, 11.602682187, 12.496457588, 13.358248655, 14.231532794, 15.105417644, 16], False, 3, [1, 1, 1, 1, 1, 1, 1, 1, 1, 1, 1, 1, 1, 1, 1, 1, 1, 1, 1], False),  # 24
    Part.BSplineCurve([V(-1.195592, -36.041063, 0), V(-1.194692, -36.017183, 0), V(-1.192917, -35.970096, 0), V(-1.181494, -35.900369, 0), V(-1.161883, -35.832728, 0), V(-1.133288, -35.767478, 0), V(-1.098172, -35.703859, 0), V(-1.054792, -35.642407, 0), V(-1.003677, -35.582951, 0), V(-0.944953, -35.526715, 0), V(-0.881309, -35.474727, 0), V(-0.81386, -35.428526, 0), V(-0.742299, -35.390766, 0), V(-0.668044, -35.359045, 0), V(-0.590345, -35.334324, 0), V(-0.509578, -35.31699, 0), V(-0.42559, -35.306095, 0), V(-0.368535, -35.304829, 0), V(-0.339522, -35.304184, 0)], [4, 1, 1, 1, 1, 1, 1, 1, 1, 1, 1, 1, 1, 1, 1, 1, 4], [0, 0.917336384, 1.808827106, 2.706624561, 3.615530867, 4.539869921, 5.493819324, 6.499753197, 7.547410123, 8.613069608, 9.653934021, 10.682176708, 11.716048074, 12.752411263, 13.808993382, 14.885826486, 16], False, 3, [1, 1, 1, 1, 1, 1, 1, 1, 1, 1, 1, 1, 1, 1, 1, 1, 1, 1, 1], False),  # 25
    Part.BSplineCurve([V(-0.319189, -36.784954, 0), V(-0.351937, -36.784318, 0), V(-0.415741, -36.783078, 0), V(-0.508859, -36.772366, 0), V(-0.596526, -36.754867, 0), V(-0.679584, -36.73114, 0), V(-0.757414, -36.699689, 0), V(-0.82991, -36.660623, 0), V(-0.898059, -36.616001, 0), V(-0.958948, -36.563173, 0), V(-1.014312, -36.506644, 0), V(-1.062806, -36.447117, 0), V(-1.103847, -36.385188, 0), V(-1.13693, -36.320893, 0), V(-1.163201, -36.254469, 0), V(-1.182139, -36.185644, 0), V(-1.193811, -36.114146, 0), V(-1.194993, -36.065647, 0), V(-1.195592, -36.041063, 0)], [4, 1, 1, 1, 1, 1, 1, 1, 1, 1, 1, 1, 1, 1, 1, 1, 4], [0, 1.224631902, 2.385975653, 3.500340538, 4.565441647, 5.612488581, 6.63322211, 7.641830068, 8.652595074, 9.641693811, 10.598750962, 11.520088299, 12.415429315, 13.298523938, 14.187139574, 15.081071174, 16], False, 3, [1, 1, 1, 1, 1, 1, 1, 1, 1, 1, 1, 1, 1, 1, 1, 1, 1, 1, 1], False),  # 26
    Part.BSplineCurve([V(0.554408, -36.074016, 0), V(0.55302, -36.105442, 0), V(0.550255, -36.168017, 0), V(0.529108, -36.260265, 0), V(0.494379, -36.349544, 0), V(0.445657, -36.434595, 0), V(0.386229, -36.514388, 0), V(0.313982, -36.58492, 0), V(0.230678, -36.645242, 0), V(0.137001, -36.695658, 0), V(0.034313, -36.735589, 0), V(-0.076752, -36.764156, 0), V(-0.195441, -36.782112, 0), V(-0.27729, -36.783992, 0), V(-0.319189, -36.784954, 0)], [4, 1, 1, 1, 1, 1, 1, 1, 1, 1, 1, 1, 4], [0, 0.899105568, 1.790333855, 2.694925079, 3.632758987, 4.588257081, 5.534574046, 6.511571685, 7.523527334, 8.572244311, 9.657983075, 10.801090915, 12], False, 3, [1, 1, 1, 1, 1, 1, 1, 1, 1, 1, 1, 1, 1, 1, 1], False),  # 27
    Part.BSplineCurve([V(-0.339522, -35.304184, 0), V(-0.308396, -35.304738, 0), V(-0.247335, -35.305825, 0), V(-0.157877, -35.317912, 0), V(-0.072028, -35.334749, 0), V(0.009948, -35.360251, 0), V(0.08763, -35.393432, 0), V(0.162111, -35.432778, 0), V(0.232226, -35.479939, 0), V(0.297661, -35.533771, 0), V(0.357568, -35.592106, 0), V(0.410317, -35.653717, 0), V(0.454883, -35.717765, 0), V(0.491048, -35.784333, 0), V(0.519104, -35.853273, 0), V(0.53981, -35.924625, 0), V(0.551832, -35.998589, 0), V(0.553545, -36.048734, 0), V(0.554408, -36.074016, 0)], [4, 1, 1, 1, 1, 1, 1, 1, 1, 1, 1, 1, 1, 1, 1, 1, 4], [0, 1.140332253, 2.237053636, 3.304055028, 4.344690294, 5.377465719, 6.397042765, 7.428360044, 8.469453732, 9.499453352, 10.490108612, 11.438398528, 12.354680514, 13.261581007, 14.161901135, 15.073242693, 16], False, 3, [1, 1, 1, 1, 1, 1, 1, 1, 1, 1, 1, 1, 1, 1, 1, 1, 1, 1, 1], False),  # 28
    Part.LineSegment(V(2.169793, -33.554184, 0), V(2.816928, -33.554184, 0)),  # 29
    Part.LineSegment(V(2.816928, -33.554184, 0), V(3.022357, -33.913159, 0)),  # 30
    Part.LineSegment(V(3.022357, -33.913159, 0), V(2.483896, -33.913159, 0)),  # 31
    Part.LineSegment(V(2.483896, -33.913159, 0), V(2.483896, -37.054184, 0)),  # 32
    Part.LineSegment(V(2.483896, -37.054184, 0), V(2.169793, -37.054184, 0)),  # 33
    Part.LineSegment(V(2.169793, -37.054184, 0), V(2.169793, -33.554184, 0)),  # 34
], False)
sketch6.addConstraint([
    Sketcher.Constraint("Block", 12),
    Sketcher.Constraint("Block", 13),
    Sketcher.Constraint("Block", 14),
    Sketcher.Constraint("Block", 15),
    Sketcher.Constraint("Block", 16),
    Sketcher.Constraint("Block", 17),
    Sketcher.Constraint("Block", 18),
    Sketcher.Constraint("Block", 19),
    Sketcher.Constraint("Block", 20),
    Sketcher.Constraint("Block", 21),
    Sketcher.Constraint("Block", 22),
    Sketcher.Constraint("Block", 23),
    Sketcher.Constraint("Block", 24),
    Sketcher.Constraint("Block", 25),
    Sketcher.Constraint("Block", 26),
    Sketcher.Constraint("Block", 27),
    Sketcher.Constraint("Block", 28),
    Sketcher.Constraint("Coincident", 0, 2, 1, 1),
    Sketcher.Constraint("Coincident", 1, 2, 2, 1),
    Sketcher.Constraint("Coincident", 2, 2, 3, 1),
    Sketcher.Constraint("Coincident", 3, 2, 4, 1),
    Sketcher.Constraint("Coincident", 4, 2, 5, 1),
    Sketcher.Constraint("Coincident", 5, 2, 0, 1),
    Sketcher.Constraint("Coincident", 6, 2, 7, 1),
    Sketcher.Constraint("Coincident", 7, 2, 8, 1),
    Sketcher.Constraint("Coincident", 8, 2, 9, 1),
    Sketcher.Constraint("Coincident", 9, 2, 10, 1),
    Sketcher.Constraint("Coincident", 10, 2, 11, 1),
    Sketcher.Constraint("Coincident", 11, 2, 6, 1),
    Sketcher.Constraint("Coincident", 29, 2, 30, 1),
    Sketcher.Constraint("Coincident", 30, 2, 31, 1),
    Sketcher.Constraint("Coincident", 31, 2, 32, 1),
    Sketcher.Constraint("Coincident", 32, 2, 33, 1),
    Sketcher.Constraint("Coincident", 33, 2, 34, 1),
    Sketcher.Constraint("Coincident", 34, 2, 29, 1),
    Sketcher.Constraint("Horizontal", 0),
    Sketcher.Constraint("Horizontal", 2),
    Sketcher.Constraint("Vertical", 3),
    Sketcher.Constraint("Horizontal", 4),
    Sketcher.Constraint("Vertical", 5),
    Sketcher.Constraint("Horizontal", 6),
    Sketcher.Constraint("Horizontal", 8),
    Sketcher.Constraint("Vertical", 9),
    Sketcher.Constraint("Horizontal", 10),
    Sketcher.Constraint("Vertical", 11),
    Sketcher.Constraint("Horizontal", 29),
    Sketcher.Constraint("Horizontal", 31),
    Sketcher.Constraint("Vertical", 32),
    Sketcher.Constraint("Horizontal", 33),
    Sketcher.Constraint("Vertical", 34),
    Sketcher.Constraint("Parallel", 1, 7),
    Sketcher.Constraint("Parallel", 7, 30),
    Sketcher.Constraint("Horizontal", 5, 2, 6, 2),
    Sketcher.Constraint("Horizontal", 2, 2, 7, 2),
    Sketcher.Constraint("Horizontal", 4, 2, 9, 2),
    Sketcher.Constraint("Horizontal", 11, 2, 29, 2),
    Sketcher.Constraint("Horizontal", 8, 2, 30, 2),
    Sketcher.Constraint("Horizontal", 10, 2, 32, 2),
    Sketcher.Constraint("Equal", 0, 6),
    Sketcher.Constraint("Equal", 2, 8),
    Sketcher.Constraint("Equal", 6, 29),
    Sketcher.Constraint("Equal", 8, 31),
    Sketcher.Constraint("DistanceY", 5, 1, 5, 2, Q("3.5 mm")),
    Sketcher.Constraint("Distance", 1, Q("0.413598 mm")),
    Sketcher.Constraint("DistanceX", 2, 2, 2, 1, Q("0.538462 mm")),
    Sketcher.Constraint("DistanceX", 0, 1, 0, 2, Q("0.647135 mm")),
    Sketcher.Constraint("DistanceX", 4, 2, 4, 1, Q("0.314103 mm")),
    Sketcher.Constraint("DistanceY", 1, 2, -1, 1, Q("33.913159 mm")),
    Sketcher.Constraint("DistanceX", 4, 2, -1, 1, Q("5.90713 mm")),
    Sketcher.Constraint("DistanceX", 7, 2, -1, 1, Q("2.362258 mm")),
    Sketcher.Constraint("DistanceX", -1, 1, 29, 2, Q("2.816928 mm")),
])
pocket4 = body.newObject("PartDesign::Pocket", "Pocket003")
pocket4.Profile = sketch6
pocket4.Length = 0.5
pocket4.Reversed = True

doc.recompute()
